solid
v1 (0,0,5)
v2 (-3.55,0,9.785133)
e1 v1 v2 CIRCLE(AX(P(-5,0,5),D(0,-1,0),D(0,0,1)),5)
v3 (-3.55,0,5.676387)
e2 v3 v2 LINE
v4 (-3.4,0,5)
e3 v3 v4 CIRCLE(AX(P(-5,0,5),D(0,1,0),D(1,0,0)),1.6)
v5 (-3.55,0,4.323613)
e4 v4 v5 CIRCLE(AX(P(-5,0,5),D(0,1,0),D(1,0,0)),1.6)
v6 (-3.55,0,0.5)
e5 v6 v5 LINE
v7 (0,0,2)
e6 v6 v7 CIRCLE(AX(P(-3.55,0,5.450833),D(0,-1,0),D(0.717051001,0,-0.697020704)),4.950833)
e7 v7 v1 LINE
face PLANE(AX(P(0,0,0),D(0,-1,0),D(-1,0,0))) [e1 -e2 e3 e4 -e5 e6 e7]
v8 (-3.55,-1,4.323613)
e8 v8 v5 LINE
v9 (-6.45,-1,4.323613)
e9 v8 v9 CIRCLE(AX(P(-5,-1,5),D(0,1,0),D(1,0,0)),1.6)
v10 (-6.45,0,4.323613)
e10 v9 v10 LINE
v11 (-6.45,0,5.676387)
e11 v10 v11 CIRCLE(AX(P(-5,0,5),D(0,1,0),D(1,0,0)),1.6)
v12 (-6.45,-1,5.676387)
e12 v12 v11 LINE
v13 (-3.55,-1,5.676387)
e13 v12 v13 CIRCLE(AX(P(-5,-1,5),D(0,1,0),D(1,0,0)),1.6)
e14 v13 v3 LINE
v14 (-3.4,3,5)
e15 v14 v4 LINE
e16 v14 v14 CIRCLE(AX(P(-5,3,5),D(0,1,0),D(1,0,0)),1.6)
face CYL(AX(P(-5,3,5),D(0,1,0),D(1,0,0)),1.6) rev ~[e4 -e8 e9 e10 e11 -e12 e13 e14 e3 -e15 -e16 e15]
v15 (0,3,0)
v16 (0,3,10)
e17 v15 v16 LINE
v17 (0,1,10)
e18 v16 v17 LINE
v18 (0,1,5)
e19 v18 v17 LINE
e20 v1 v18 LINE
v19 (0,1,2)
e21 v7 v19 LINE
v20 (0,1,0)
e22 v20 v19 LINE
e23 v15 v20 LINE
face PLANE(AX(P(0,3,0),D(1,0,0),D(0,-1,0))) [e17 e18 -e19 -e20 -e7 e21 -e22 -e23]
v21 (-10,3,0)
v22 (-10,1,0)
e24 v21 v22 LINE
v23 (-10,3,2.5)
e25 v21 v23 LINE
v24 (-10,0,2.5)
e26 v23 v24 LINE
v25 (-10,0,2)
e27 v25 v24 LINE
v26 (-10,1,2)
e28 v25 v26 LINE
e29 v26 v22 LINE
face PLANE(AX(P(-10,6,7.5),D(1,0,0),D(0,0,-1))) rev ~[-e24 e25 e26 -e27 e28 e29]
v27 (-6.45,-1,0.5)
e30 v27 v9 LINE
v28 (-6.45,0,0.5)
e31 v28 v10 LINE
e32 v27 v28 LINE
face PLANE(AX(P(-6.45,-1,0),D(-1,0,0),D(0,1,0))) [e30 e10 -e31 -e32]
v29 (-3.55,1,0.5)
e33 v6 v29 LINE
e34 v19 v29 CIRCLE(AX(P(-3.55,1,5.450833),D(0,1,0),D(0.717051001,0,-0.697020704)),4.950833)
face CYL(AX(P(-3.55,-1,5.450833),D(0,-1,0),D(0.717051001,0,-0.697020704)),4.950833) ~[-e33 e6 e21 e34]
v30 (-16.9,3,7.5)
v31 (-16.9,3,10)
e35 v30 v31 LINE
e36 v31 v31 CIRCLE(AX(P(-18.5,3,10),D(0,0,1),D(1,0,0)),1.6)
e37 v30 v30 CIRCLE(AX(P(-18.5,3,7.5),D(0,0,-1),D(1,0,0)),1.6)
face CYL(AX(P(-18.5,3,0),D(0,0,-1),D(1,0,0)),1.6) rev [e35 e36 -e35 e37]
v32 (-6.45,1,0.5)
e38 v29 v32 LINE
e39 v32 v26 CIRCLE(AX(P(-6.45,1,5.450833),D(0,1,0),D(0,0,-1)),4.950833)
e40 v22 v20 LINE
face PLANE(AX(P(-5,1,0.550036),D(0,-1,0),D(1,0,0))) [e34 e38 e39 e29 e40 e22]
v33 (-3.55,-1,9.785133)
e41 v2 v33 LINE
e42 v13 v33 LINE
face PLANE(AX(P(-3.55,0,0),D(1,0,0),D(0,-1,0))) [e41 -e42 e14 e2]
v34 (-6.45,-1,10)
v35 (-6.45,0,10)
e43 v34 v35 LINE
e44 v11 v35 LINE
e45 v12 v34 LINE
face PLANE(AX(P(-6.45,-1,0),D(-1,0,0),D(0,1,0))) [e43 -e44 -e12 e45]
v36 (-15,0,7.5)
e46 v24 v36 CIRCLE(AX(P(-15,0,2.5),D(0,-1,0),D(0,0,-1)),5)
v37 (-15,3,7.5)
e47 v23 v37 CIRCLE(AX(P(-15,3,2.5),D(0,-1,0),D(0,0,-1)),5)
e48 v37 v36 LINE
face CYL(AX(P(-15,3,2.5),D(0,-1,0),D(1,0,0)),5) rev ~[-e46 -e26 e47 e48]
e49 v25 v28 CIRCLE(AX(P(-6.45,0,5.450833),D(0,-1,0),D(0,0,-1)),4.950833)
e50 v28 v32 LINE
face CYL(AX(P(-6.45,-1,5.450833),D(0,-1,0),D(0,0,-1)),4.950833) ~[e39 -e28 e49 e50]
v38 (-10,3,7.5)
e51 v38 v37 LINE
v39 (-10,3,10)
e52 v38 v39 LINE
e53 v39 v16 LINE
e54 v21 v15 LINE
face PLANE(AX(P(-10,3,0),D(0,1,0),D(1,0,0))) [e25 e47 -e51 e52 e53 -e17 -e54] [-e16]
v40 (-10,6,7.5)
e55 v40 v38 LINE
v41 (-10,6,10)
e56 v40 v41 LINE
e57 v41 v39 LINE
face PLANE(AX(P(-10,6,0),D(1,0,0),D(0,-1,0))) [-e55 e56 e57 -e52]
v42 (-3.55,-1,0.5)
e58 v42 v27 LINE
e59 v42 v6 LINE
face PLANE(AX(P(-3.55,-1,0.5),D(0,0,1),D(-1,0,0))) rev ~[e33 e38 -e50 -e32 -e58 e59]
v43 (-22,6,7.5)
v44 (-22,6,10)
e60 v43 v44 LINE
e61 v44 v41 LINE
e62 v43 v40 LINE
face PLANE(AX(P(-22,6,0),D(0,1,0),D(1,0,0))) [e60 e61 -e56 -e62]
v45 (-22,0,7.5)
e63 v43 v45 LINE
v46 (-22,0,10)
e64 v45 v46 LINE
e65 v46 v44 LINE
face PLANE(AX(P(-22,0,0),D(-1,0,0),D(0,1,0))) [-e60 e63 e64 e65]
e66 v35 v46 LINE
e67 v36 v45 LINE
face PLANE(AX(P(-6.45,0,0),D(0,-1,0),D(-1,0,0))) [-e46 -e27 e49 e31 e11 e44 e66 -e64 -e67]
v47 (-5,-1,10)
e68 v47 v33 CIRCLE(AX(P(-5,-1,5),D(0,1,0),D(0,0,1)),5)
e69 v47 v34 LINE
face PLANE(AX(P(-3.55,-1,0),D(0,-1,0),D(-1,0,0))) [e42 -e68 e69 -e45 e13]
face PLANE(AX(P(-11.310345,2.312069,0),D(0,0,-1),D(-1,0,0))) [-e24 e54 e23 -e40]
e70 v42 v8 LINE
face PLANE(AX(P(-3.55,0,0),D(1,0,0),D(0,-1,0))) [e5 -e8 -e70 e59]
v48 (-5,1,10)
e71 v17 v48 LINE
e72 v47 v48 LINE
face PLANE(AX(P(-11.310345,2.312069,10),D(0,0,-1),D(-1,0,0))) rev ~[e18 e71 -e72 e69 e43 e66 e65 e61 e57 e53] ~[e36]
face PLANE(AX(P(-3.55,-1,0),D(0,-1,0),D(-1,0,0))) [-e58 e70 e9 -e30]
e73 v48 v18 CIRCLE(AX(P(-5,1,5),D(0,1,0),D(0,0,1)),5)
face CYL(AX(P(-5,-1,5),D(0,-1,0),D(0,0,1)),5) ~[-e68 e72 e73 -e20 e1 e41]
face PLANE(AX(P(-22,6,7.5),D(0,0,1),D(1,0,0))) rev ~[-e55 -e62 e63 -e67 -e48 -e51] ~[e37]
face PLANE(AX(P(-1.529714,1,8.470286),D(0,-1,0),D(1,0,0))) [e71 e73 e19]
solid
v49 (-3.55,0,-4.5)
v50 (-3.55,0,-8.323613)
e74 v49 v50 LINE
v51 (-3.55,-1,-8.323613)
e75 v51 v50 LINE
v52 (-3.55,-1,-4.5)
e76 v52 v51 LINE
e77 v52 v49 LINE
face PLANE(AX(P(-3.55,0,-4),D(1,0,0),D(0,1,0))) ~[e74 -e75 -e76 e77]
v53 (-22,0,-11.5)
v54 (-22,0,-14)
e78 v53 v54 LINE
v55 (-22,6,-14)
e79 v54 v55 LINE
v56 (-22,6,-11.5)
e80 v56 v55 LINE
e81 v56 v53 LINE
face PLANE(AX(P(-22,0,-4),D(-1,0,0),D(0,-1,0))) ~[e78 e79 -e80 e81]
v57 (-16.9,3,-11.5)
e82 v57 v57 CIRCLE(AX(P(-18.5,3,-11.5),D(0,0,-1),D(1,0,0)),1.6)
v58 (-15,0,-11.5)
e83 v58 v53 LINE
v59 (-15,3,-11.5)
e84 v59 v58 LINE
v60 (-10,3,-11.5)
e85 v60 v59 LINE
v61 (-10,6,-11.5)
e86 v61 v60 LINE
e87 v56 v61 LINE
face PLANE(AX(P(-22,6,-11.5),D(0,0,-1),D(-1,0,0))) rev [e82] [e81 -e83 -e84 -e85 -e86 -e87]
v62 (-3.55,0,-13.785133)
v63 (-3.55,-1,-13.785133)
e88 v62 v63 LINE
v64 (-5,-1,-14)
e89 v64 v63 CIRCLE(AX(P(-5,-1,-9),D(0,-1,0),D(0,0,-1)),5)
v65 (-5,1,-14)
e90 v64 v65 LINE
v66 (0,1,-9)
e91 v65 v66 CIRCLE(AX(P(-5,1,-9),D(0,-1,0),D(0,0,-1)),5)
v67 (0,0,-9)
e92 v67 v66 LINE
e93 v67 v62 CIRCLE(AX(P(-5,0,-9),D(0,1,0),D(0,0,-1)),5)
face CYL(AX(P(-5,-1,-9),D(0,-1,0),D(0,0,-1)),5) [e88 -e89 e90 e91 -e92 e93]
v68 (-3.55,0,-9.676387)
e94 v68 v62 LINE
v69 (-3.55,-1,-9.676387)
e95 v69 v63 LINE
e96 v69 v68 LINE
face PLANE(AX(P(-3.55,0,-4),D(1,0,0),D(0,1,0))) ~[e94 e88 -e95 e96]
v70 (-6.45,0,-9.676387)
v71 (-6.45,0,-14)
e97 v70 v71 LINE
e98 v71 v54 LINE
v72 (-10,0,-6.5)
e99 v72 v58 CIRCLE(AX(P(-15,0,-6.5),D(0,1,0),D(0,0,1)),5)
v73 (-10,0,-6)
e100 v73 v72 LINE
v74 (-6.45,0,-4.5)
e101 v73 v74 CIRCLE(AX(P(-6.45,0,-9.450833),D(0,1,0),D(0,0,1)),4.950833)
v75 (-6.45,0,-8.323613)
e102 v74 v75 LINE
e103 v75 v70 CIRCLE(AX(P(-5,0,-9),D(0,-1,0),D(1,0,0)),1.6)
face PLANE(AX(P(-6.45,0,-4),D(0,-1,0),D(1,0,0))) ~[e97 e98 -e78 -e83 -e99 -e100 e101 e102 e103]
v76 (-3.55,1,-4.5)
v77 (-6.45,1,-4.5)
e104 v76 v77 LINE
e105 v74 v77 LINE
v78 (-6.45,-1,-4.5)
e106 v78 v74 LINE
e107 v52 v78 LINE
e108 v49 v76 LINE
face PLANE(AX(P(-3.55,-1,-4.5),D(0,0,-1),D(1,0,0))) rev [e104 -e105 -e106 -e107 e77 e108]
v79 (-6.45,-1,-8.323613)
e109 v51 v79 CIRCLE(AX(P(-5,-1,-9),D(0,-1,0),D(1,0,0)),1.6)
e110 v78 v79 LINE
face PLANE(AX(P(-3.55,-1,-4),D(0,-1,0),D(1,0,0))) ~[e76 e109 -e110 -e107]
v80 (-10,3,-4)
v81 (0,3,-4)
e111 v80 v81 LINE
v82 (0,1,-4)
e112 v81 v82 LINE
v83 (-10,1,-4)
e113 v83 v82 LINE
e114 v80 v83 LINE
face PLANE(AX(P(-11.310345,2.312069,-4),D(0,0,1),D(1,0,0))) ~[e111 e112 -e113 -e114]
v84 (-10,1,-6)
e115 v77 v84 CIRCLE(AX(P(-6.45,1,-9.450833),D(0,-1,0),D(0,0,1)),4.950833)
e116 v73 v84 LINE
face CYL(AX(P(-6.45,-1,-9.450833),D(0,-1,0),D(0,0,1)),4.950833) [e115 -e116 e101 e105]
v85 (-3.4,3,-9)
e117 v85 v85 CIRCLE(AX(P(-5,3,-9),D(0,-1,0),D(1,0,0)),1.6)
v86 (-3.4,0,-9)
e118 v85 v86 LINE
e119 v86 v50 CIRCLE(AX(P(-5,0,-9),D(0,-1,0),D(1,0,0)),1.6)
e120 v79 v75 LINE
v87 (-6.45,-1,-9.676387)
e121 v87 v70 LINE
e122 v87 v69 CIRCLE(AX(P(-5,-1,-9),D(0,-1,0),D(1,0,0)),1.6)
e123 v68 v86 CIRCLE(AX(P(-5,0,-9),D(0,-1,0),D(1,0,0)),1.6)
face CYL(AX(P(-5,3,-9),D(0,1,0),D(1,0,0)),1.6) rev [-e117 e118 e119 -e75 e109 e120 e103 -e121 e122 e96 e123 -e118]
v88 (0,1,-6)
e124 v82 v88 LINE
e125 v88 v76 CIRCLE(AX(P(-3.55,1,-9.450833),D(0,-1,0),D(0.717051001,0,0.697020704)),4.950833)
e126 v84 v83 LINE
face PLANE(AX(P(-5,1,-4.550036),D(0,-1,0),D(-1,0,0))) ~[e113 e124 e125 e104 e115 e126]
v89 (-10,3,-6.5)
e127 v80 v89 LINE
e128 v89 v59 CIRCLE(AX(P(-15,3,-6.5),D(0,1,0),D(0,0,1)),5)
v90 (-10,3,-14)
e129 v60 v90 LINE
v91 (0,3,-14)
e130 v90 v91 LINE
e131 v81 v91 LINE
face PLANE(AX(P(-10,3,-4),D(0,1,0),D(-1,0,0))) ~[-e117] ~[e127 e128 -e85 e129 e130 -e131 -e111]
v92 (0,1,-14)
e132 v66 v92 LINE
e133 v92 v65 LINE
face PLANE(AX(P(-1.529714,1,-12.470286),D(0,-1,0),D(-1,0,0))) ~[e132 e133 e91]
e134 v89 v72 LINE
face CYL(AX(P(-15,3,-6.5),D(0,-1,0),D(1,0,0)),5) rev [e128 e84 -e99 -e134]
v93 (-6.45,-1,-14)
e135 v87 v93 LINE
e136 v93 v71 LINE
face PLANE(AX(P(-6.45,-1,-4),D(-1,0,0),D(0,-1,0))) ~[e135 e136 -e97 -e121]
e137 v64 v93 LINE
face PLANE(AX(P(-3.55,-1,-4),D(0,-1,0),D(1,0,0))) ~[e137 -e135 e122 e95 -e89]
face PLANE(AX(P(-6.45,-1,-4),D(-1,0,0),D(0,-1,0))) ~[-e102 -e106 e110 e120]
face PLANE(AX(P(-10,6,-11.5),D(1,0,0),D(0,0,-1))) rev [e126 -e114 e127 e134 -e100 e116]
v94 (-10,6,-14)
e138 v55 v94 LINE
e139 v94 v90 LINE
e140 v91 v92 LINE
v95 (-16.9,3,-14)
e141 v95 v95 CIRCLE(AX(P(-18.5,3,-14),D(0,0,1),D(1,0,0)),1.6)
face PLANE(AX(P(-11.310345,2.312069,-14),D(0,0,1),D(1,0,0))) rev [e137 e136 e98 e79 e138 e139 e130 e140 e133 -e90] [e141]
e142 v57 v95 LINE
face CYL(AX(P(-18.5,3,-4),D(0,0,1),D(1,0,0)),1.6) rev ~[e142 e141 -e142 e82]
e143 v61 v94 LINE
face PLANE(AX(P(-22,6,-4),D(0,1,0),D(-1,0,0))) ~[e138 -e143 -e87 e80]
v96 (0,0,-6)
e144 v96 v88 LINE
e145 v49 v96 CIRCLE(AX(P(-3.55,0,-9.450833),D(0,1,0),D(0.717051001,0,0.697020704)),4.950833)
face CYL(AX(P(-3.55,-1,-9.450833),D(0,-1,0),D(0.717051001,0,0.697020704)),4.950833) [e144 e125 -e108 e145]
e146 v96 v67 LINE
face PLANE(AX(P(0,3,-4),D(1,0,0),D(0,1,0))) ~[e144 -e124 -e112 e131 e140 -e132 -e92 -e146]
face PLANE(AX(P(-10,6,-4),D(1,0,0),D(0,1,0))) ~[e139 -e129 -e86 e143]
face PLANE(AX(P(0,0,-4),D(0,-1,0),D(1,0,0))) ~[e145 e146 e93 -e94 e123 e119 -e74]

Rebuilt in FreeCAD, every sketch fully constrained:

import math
import FreeCAD as App
import Part
import Sketcher

V = App.Vector
Q = App.Units.Quantity


def edges_at(feature, points):
    """Names of the edges that pass closest to the given points."""
    edges = feature.Shape.Edges
    near = lambda p: min(range(len(edges)), key=lambda i: edges[i].distToShape(Part.Vertex(*p))[0])
    return sorted({f"Edge{near(p) + 1}" for p in points})


def add_polygon(sketch, points):
    """Adds a closed chain of lines whose ends are joined by coincident constraints."""
    first, n = sketch.GeometryCount, len(points)
    for a, b in zip(points, points[1:] + points[:1]):
        sketch.addGeometry(Part.LineSegment(App.Vector(*a, 0), App.Vector(*b, 0)), False)
    for i in range(n):
        sketch.addConstraint(Sketcher.Constraint("Coincident", first + i, 2, first + (i + 1) % n, 1))

doc = App.newDocument("Part")
body = doc.addObject("PartDesign::Body", "Body")

sketch1 = body.newObject("Sketcher::SketchObject", "Sketch")
sketch1.AttachmentSupport = (doc.getObject("XY_Plane"), [""])
sketch1.MapMode = "FlatFace"
add_polygon(sketch1, [(-3.5, 0), (0, 0), (0, 3), (-10, 3), (-10, 6), (-22, 6), (-22, 0), (-6.5, 0), (-6.5, -1), (-3.5, -1)])
sketch1.addGeometry(Part.Circle(V(-18.5, 3, 0), V(0, 0, 1), 1.6), False)
sketch1.addConstraint([
    Sketcher.Constraint("Horizontal", 0),
    Sketcher.Constraint("Vertical", 1),
    Sketcher.Constraint("Horizontal", 2),
    Sketcher.Constraint("Vertical", 3),
    Sketcher.Constraint("Horizontal", 4),
    Sketcher.Constraint("Vertical", 5),
    Sketcher.Constraint("Horizontal", 6),
    Sketcher.Constraint("Vertical", 7),
    Sketcher.Constraint("Horizontal", 8),
    Sketcher.Constraint("Vertical", 9),
    Sketcher.Constraint("Coincident", 0, 2, -1, 1),
    Sketcher.Constraint("PointOnObject", 5, 2, -1),
    Sketcher.Constraint("Horizontal", 10, 3, 1, 2),
    Sketcher.Constraint("Equal", 1, 3),
    Sketcher.Constraint("Diameter", 10, Q("3.2 mm")),
    Sketcher.Constraint("DistanceX", 2, 2, 2, 1, Q("10 mm")),
    Sketcher.Constraint("DistanceX", 4, 2, 4, 1, Q("12 mm")),
    Sketcher.Constraint("DistanceY", 1, 1, 1, 2, Q("3 mm")),
    Sketcher.Constraint("DistanceY", 7, 2, 7, 1, Q("1 mm")),
    Sketcher.Constraint("DistanceX", 8, 1, 8, 2, Q("2.9 mm")),
    Sketcher.Constraint("DistanceX", 0, 1, 0, 2, Q("3.55 mm")),
    Sketcher.Constraint("DistanceX", 10, 3, -1, 1, Q("18.5 mm")),
])
pad1 = body.newObject("PartDesign::Pad", "Pad")
pad1.Profile = sketch1
pad1.Length = 10

sketch2 = body.newObject("Sketcher::SketchObject", "Sketch001")
sketch2.AttachmentSupport = (doc.getObject("XZ_Plane"), [""])
sketch2.MapMode = "FlatFace"
sketch2.AttachmentOffset = App.Placement(V(0, 0, -3), App.Rotation())
sketch2.addGeometry(Part.Circle(V(-5, 5, 0), V(0, 0, 1), 1.6), False)
sketch2.addConstraint([
    Sketcher.Constraint("Diameter", 0, Q("3.2 mm")),
    Sketcher.Constraint("DistanceX", 0, 3, -1, 1, Q("5 mm")),
    Sketcher.Constraint("DistanceY", -1, 1, 0, 3, Q("5 mm")),
])
pocket1 = body.newObject("PartDesign::Pocket", "Pocket")
pocket1.Profile = sketch2
pocket1.Type = "ThroughAll"
pocket1.Reversed = True

sketch3 = body.newObject("Sketcher::SketchObject", "Sketch002")
sketch3.AttachmentSupport = (doc.getObject("XZ_Plane"), [""])
sketch3.MapMode = "FlatFace"
sketch3.AttachmentOffset = App.Placement(V(0, 0, -6), App.Rotation())
add_polygon(sketch3, [(-22, 0), (-22, 8), (-10, 8), (-10, 0)])
sketch3.addConstraint([
    Sketcher.Constraint("Vertical", 0),
    Sketcher.Constraint("Horizontal", 1),
    Sketcher.Constraint("Vertical", 2),
    Sketcher.Constraint("Horizontal", 3),
    Sketcher.Constraint("PointOnObject", 2, 2, -1),
    Sketcher.Constraint("DistanceX", 1, 1, 1, 2, Q("12 mm")),
    Sketcher.Constraint("DistanceY", 0, 1, 0, 2, Q("7.5 mm")),
    Sketcher.Constraint("DistanceX", 0, 2, -1, 1, Q("22 mm")),
])
pocket2 = body.newObject("PartDesign::Pocket", "Pocket001")
pocket2.Profile = sketch3
pocket2.Type = "ThroughAll"
pocket2.Reversed = True
doc.recompute()

fillet = body.newObject("PartDesign::Fillet", "Fillet")
fillet.Base = (pocket2, edges_at(pocket2, [(-10, 1.5, 7.5)]))
fillet.Radius = 5

sketch4 = body.newObject("Sketcher::SketchObject", "Sketch003")
sketch4.AttachmentSupport = (doc.getObject("XZ_Plane"), [""])
sketch4.MapMode = "FlatFace"
sketch4.AttachmentOffset = App.Placement(V(0, 0, 1), App.Rotation())
sketch4.addGeometry([
    Part.LineSegment(V(-3.5, 0.5, 0), V(-6.5, 0.5, 0)),
    Part.ArcOfCircle(Part.Circle(V(-6.4, 5.5, 0), V(0, 0, 1), 5), math.radians(-136), math.radians(-90)),
    Part.LineSegment(V(-10, 2, 0), V(-10, 0, 0)),
    Part.LineSegment(V(-10, 0, 0), V(0, 0, 0)),
    Part.LineSegment(V(0, 0, 0), V(0, 2, 0)),
    Part.ArcOfCircle(Part.Circle(V(-3.6, 5.5, 0), V(0, 0, 1), 5), math.radians(-90), math.radians(-44)),
    Part.LineSegment(V(0, 5, 0), V(0, 10, 0)),
    Part.LineSegment(V(0, 10, 0), V(-5, 10, 0)),
    Part.ArcOfCircle(Part.Circle(V(-5, 5, 0), V(0, 0, 1), 5), math.radians(0), math.radians(90)),
], False)
sketch4.addConstraint([
    Sketcher.Constraint("Tangent", 0, 2, 1, 2),
    Sketcher.Constraint("Coincident", 1, 1, 2, 1),
    Sketcher.Constraint("Coincident", 2, 2, 3, 1),
    Sketcher.Constraint("Coincident", 3, 2, 4, 1),
    Sketcher.Constraint("Coincident", 4, 2, 5, 2),
    Sketcher.Constraint("Tangent", 5, 1, 0, 1),
    Sketcher.Constraint("Coincident", 6, 2, 7, 1),
    Sketcher.Constraint("Tangent", 7, 2, 8, 2),
    Sketcher.Constraint("Tangent", 8, 1, 6, 1),
    Sketcher.Constraint("Horizontal", 0),
    Sketcher.Constraint("Vertical", 2),
    Sketcher.Constraint("Horizontal", 3),
    Sketcher.Constraint("Vertical", 4),
    Sketcher.Constraint("Vertical", 6),
    Sketcher.Constraint("Horizontal", 7),
    Sketcher.Constraint("Coincident", 3, 2, -1, 1),
    Sketcher.Constraint("Equal", 1, 5),
    Sketcher.Constraint("PointOnObject", 6, 2, -2),
    Sketcher.Constraint("Horizontal", 1, 1, 4, 2),
    Sketcher.Constraint("Radius", 8, Q("5 mm")),
    Sketcher.Constraint("DistanceX", 3, 1, 3, 2, Q("10 mm")),
    Sketcher.Constraint("DistanceY", 2, 2, 2, 1, Q("2 mm")),
    Sketcher.Constraint("DistanceX", 0, 2, 0, 1, Q("2.9 mm")),
    Sketcher.Constraint("DistanceY", -1, 1, 8, 3, Q("5 mm")),
    Sketcher.Constraint("DistanceY", -1, 1, 0, 2, Q("0.5 mm")),
])
pocket3 = body.newObject("PartDesign::Pocket", "Pocket002")
pocket3.Profile = sketch4
pocket3.Length = 2
body2 = doc.addObject("PartDesign::Body", "Body001")
doc.recompute()

mirroring = doc.addObject("Part::Mirroring", "Mirroring")
mirroring.Source = body
mirroring.Base = V(0, 0, -2)
mirroring.Normal = V(0, 0, 1)
body2.BaseFeature = mirroring
doc.recompute()
mirroring.Visibility = False

doc.recompute()
